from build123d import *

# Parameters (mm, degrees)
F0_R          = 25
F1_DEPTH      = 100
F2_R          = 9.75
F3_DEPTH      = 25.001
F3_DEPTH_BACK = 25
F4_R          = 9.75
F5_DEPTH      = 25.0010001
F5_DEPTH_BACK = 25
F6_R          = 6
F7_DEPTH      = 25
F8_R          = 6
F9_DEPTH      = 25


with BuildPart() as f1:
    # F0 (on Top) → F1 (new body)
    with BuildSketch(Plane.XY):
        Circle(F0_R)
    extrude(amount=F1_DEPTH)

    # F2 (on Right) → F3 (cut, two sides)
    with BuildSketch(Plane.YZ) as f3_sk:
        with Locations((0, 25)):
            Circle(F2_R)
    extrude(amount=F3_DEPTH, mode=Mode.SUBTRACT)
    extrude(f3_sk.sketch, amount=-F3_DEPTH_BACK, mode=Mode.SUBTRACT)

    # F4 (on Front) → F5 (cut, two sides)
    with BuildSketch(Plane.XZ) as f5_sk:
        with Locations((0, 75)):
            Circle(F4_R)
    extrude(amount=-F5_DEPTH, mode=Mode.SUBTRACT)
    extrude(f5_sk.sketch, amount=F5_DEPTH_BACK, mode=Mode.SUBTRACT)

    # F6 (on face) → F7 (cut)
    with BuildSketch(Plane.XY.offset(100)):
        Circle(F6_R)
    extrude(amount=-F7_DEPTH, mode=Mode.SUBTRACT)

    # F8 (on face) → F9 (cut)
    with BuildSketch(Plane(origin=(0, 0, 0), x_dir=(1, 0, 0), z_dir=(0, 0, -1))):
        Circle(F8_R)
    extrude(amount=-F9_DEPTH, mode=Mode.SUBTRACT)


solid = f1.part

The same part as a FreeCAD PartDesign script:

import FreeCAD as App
import Part
import Sketcher

V = App.Vector

doc = App.newDocument("Part")
body = doc.addObject("PartDesign::Body", "Body")

sketch1 = doc.addObject("Sketcher::SketchObject", "Sketch")
body.addObject(sketch1)
sketch1.AttachmentSupport = (doc.XY_Plane, [""])
sketch1.MapMode = "FlatFace"
sketch1.addGeometry(Part.Circle(V(0, 0, 0), V(0, 0, 1), 25), False)
sketch1.addConstraint(Sketcher.Constraint("Coincident", 0, 3, -1, 1))
sketch1.addConstraint(Sketcher.Constraint("Diameter", 0, 50.0))
pad1 = doc.addObject("PartDesign::Pad", "Pad")
body.addObject(pad1)
pad1.Profile = sketch1
pad1.Length = 100

sketch2 = doc.addObject("Sketcher::SketchObject", "Sketch001")
body.addObject(sketch2)
sketch2.AttachmentSupport = (doc.YZ_Plane, [""])
sketch2.MapMode = "FlatFace"
sketch2.addGeometry(Part.Circle(V(0, 25, 0), V(0, 0, 1), 10), False)
sketch2.addConstraint(Sketcher.Constraint("PointOnObject", 0, 3, -2))
sketch2.addConstraint(Sketcher.Constraint("Diameter", 0, 19.5))
sketch2.addConstraint(Sketcher.Constraint("DistanceY", -1, 1, 0, 3, 25.0))
pocket1 = doc.addObject("PartDesign::Pocket", "Pocket")
body.addObject(pocket1)
pocket1.Profile = sketch2
pocket1.Type = "ThroughAll"
pocket1.Midplane = True

sketch3 = doc.addObject("Sketcher::SketchObject", "Sketch002")
body.addObject(sketch3)
sketch3.AttachmentSupport = (doc.XZ_Plane, [""])
sketch3.MapMode = "FlatFace"
sketch3.addGeometry(Part.Circle(V(0, 75, 0), V(0, 0, 1), 10), False)
sketch3.addConstraint(Sketcher.Constraint("PointOnObject", 0, 3, -2))
sketch3.addConstraint(Sketcher.Constraint("Diameter", 0, 19.5))
sketch3.addConstraint(Sketcher.Constraint("DistanceY", -1, 1, 0, 3, 75.0))
pocket2 = doc.addObject("PartDesign::Pocket", "Pocket001")
body.addObject(pocket2)
pocket2.Profile = sketch3
pocket2.Type = "ThroughAll"
pocket2.Midplane = True

sketch4 = doc.addObject("Sketcher::SketchObject", "Sketch003")
body.addObject(sketch4)
sketch4.AttachmentSupport = (doc.XY_Plane, [""])
sketch4.MapMode = "FlatFace"
sketch4.AttachmentOffset = App.Placement(V(0, 0, 100), App.Rotation())
sketch4.addGeometry(Part.Circle(V(0, 0, 0), V(0, 0, 1), 6), False)
sketch4.addConstraint(Sketcher.Constraint("Coincident", 0, 3, -1, 1))
sketch4.addConstraint(Sketcher.Constraint("Diameter", 0, 12.0))
pocket3 = doc.addObject("PartDesign::Pocket", "Pocket002")
body.addObject(pocket3)
pocket3.Profile = sketch4
pocket3.Length = 25

sketch5 = doc.addObject("Sketcher::SketchObject", "Sketch004")
body.addObject(sketch5)
sketch5.AttachmentSupport = (doc.XY_Plane, [""])
sketch5.MapMode = "FlatFace"
sketch5.addGeometry(Part.Circle(V(0, 0, 0), V(0, 0, 1), 6), False)
sketch5.addConstraint(Sketcher.Constraint("Coincident", 0, 3, -1, 1))
sketch5.addConstraint(Sketcher.Constraint("Diameter", 0, 12.0))
pocket4 = doc.addObject("PartDesign::Pocket", "Pocket003")
body.addObject(pocket4)
pocket4.Profile = sketch5
pocket4.Length = 25
pocket4.Reversed = True

doc.recompute()
